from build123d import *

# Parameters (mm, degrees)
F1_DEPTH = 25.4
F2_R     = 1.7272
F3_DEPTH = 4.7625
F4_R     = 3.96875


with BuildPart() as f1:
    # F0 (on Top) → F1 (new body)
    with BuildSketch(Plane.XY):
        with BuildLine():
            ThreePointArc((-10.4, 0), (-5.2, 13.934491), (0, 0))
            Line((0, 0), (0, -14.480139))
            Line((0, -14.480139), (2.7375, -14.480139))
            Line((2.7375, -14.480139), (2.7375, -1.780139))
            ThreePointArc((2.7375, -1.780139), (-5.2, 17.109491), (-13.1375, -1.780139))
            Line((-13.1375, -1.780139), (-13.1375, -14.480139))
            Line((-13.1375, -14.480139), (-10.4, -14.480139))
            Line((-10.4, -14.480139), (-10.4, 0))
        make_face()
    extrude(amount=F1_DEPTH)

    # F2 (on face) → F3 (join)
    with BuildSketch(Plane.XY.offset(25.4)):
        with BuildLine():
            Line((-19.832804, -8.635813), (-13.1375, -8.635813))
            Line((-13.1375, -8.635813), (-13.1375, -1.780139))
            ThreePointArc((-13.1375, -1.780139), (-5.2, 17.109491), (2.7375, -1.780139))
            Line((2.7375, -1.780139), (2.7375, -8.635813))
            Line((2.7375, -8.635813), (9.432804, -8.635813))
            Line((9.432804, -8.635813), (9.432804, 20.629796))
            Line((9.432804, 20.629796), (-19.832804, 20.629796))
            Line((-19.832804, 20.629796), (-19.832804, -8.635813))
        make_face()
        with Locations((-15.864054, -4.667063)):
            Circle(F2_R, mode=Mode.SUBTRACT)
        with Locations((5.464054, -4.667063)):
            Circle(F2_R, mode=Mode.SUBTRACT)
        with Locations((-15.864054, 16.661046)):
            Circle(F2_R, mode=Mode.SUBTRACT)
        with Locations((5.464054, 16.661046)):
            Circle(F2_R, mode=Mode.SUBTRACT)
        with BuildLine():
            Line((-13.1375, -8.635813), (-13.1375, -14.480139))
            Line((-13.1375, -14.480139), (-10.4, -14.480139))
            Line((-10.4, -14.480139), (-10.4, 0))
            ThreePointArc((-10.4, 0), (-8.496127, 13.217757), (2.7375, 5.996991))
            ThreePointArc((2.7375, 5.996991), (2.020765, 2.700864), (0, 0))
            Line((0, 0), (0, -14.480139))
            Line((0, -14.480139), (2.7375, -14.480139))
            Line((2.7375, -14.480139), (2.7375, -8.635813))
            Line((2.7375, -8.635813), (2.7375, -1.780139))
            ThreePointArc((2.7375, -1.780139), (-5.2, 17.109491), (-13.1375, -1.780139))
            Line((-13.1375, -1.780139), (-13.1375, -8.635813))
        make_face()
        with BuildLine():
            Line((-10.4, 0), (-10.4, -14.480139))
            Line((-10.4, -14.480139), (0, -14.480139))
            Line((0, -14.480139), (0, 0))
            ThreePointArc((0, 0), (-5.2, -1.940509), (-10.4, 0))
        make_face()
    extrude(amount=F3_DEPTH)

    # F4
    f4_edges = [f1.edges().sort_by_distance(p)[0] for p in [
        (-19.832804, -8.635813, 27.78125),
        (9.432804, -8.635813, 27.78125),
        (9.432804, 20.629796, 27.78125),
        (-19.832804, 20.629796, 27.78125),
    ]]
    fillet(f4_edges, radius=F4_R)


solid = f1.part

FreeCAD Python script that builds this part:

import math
import FreeCAD as App
import Part
import Sketcher
from FreeCAD import Vector
Q = App.Units.Quantity


def edges_at(feature, points):
    """Names of the edges that pass closest to the given points."""
    edges = feature.Shape.Edges
    near = lambda p: min(range(len(edges)), key=lambda i: edges[i].distToShape(Part.Vertex(*p))[0])
    return sorted({f"Edge{near(p) + 1}" for p in points})

doc = App.newDocument("Part")
body = doc.addObject("PartDesign::Body", "Body")

# Sketch on XY plane
sketch1 = body.newObject("Sketcher::SketchObject", "Sketch")
sketch1.AttachmentSupport = (doc.getObject("XY_Plane"), [""])
sketch1.MapMode = "FlatFace"
sketch1.addGeometry(Part.ArcOfCircle(Part.Circle(Vector(-5.2, 6, 0), Vector(0, 0, 1), 7.9), math.radians(-49), math.radians(229)), False)
sketch1.addGeometry(Part.LineSegment(Vector(0, 0, 0), Vector(0, -14.5, 0)), False)
sketch1.addGeometry(Part.LineSegment(Vector(0, -14.5, 0), Vector(2.7, -14.5, 0)), False)
sketch1.addGeometry(Part.LineSegment(Vector(2.7, -14.5, 0), Vector(2.7, -1.8, 0)), False)
sketch1.addGeometry(Part.ArcOfCircle(Part.Circle(Vector(-5.2, 6, 0), Vector(0, 0, 1), 11.1), math.radians(-44), math.radians(224)), False)
sketch1.addGeometry(Part.LineSegment(Vector(-13.1, -1.8, 0), Vector(-13.1, -14.5, 0)), False)
sketch1.addGeometry(Part.LineSegment(Vector(-13.1, -14.5, 0), Vector(-10.4, -14.5, 0)), False)
sketch1.addGeometry(Part.LineSegment(Vector(-10.4, -14.5, 0), Vector(-10.4, 0, 0)), False)
sketch1.addConstraint(Sketcher.Constraint("Coincident", 0, 1, 1, 1))
sketch1.addConstraint(Sketcher.Constraint("Coincident", 1, 2, 2, 1))
sketch1.addConstraint(Sketcher.Constraint("Coincident", 2, 2, 3, 1))
sketch1.addConstraint(Sketcher.Constraint("Coincident", 3, 2, 4, 1))
sketch1.addConstraint(Sketcher.Constraint("Coincident", 4, 2, 5, 1))
sketch1.addConstraint(Sketcher.Constraint("Coincident", 5, 2, 6, 1))
sketch1.addConstraint(Sketcher.Constraint("Coincident", 6, 2, 7, 1))
sketch1.addConstraint(Sketcher.Constraint("Coincident", 7, 2, 0, 2))
sketch1.addConstraint(Sketcher.Constraint("Vertical", 1))
sketch1.addConstraint(Sketcher.Constraint("Horizontal", 2))
sketch1.addConstraint(Sketcher.Constraint("Vertical", 3))
sketch1.addConstraint(Sketcher.Constraint("Vertical", 5))
sketch1.addConstraint(Sketcher.Constraint("Horizontal", 6))
sketch1.addConstraint(Sketcher.Constraint("Vertical", 7))
sketch1.addConstraint(Sketcher.Constraint("Coincident", 0, 1, -1, 1))
sketch1.addConstraint(Sketcher.Constraint("Coincident", 4, 3, 0, 3))
sketch1.addConstraint(Sketcher.Constraint("PointOnObject", 7, 2, -1))
sketch1.addConstraint(Sketcher.Constraint("Horizontal", 3, 2, 4, 2))
sketch1.addConstraint(Sketcher.Constraint("Horizontal", 2, 2, 5, 2))
sketch1.addConstraint(Sketcher.Constraint("DistanceY", 3, 1, 3, 2, Q("0.5 in")))
sketch1.addConstraint(Sketcher.Constraint("Radius", 0, Q("0.3125 in")))
sketch1.addConstraint(Sketcher.Constraint("Radius", 4, Q("0.4375 in")))
sketch1.addConstraint(Sketcher.Constraint("DistanceX", 4, 3, 2, 2, Q("0.3125 in")))
sketch1.addConstraint(Sketcher.Constraint("DistanceX", 2, 1, 2, 2, Q("2.7375 mm")))
pad1 = body.newObject("PartDesign::Pad", "Pad")
pad1.Profile = sketch1
pad1.Length = Q("1 in")

# Sketch on XY plane
sketch2 = body.newObject("Sketcher::SketchObject", "Sketch001")
sketch2.AttachmentSupport = (doc.getObject("XY_Plane"), [""])
sketch2.MapMode = "FlatFace"
sketch2.AttachmentOffset = App.Placement(Vector(0, 0, 1 * 25.4), App.Rotation())
sketch2.addGeometry(Part.LineSegment(Vector(-19.8, -8.6, 0), Vector(-13.1, -8.6, 0)), False)
sketch2.addGeometry(Part.LineSegment(Vector(-13.1, -8.6, 0), Vector(-13.1, -14.5, 0)), False)
sketch2.addGeometry(Part.LineSegment(Vector(-13.1, -14.5, 0), Vector(2.7, -14.5, 0)), False)
sketch2.addGeometry(Part.LineSegment(Vector(2.7, -14.5, 0), Vector(2.7, -8.6, 0)), False)
sketch2.addGeometry(Part.LineSegment(Vector(2.7, -8.6, 0), Vector(9.4, -8.6, 0)), False)
sketch2.addGeometry(Part.LineSegment(Vector(9.4, -8.6, 0), Vector(9.4, 20.6, 0)), False)
sketch2.addGeometry(Part.LineSegment(Vector(9.4, 20.6, 0), Vector(-19.8, 20.6, 0)), False)
sketch2.addGeometry(Part.LineSegment(Vector(-19.8, 20.6, 0), Vector(-19.8, -8.6, 0)), False)
sketch2.addGeometry(Part.ArcOfCircle(Part.Circle(Vector(-5.2, 6, 0), Vector(0, 0, 1), 7.9), math.radians(0), math.radians(229)), False)
sketch2.addGeometry(Part.ArcOfCircle(Part.Circle(Vector(-5.2, 6, 0), Vector(0, 0, 1), 7.9), math.radians(-49), math.radians(0)), False)
sketch2.addGeometry(Part.ArcOfCircle(Part.Circle(Vector(-5.2, 6, 0), Vector(0, 0, 1), 7.9), math.radians(-131), math.radians(-49)), False)
sketch2.addGeometry(Part.Circle(Vector(-15.9, -4.7, 0), Vector(0, 0, 1), 1.7), False)
sketch2.addGeometry(Part.Circle(Vector(5.5, -4.7, 0), Vector(0, 0, 1), 1.7), False)
sketch2.addGeometry(Part.Circle(Vector(-15.9, 16.7, 0), Vector(0, 0, 1), 1.7), False)
sketch2.addGeometry(Part.Circle(Vector(5.5, 16.7, 0), Vector(0, 0, 1), 1.7), False)
sketch2.addConstraint(Sketcher.Constraint("Coincident", 0, 2, 1, 1))
sketch2.addConstraint(Sketcher.Constraint("Coincident", 1, 2, 2, 1))
sketch2.addConstraint(Sketcher.Constraint("Coincident", 2, 2, 3, 1))
sketch2.addConstraint(Sketcher.Constraint("Coincident", 3, 2, 4, 1))
sketch2.addConstraint(Sketcher.Constraint("Coincident", 4, 2, 5, 1))
sketch2.addConstraint(Sketcher.Constraint("Coincident", 5, 2, 6, 1))
sketch2.addConstraint(Sketcher.Constraint("Coincident", 6, 2, 7, 1))
sketch2.addConstraint(Sketcher.Constraint("Coincident", 7, 2, 0, 1))
sketch2.addConstraint(Sketcher.Constraint("Tangent", 8, 1, 9, 2))
sketch2.addConstraint(Sketcher.Constraint("Tangent", 9, 1, 10, 2))
sketch2.addConstraint(Sketcher.Constraint("Tangent", 10, 1, 8, 2))
sketch2.addConstraint(Sketcher.Constraint("Horizontal", 0))
sketch2.addConstraint(Sketcher.Constraint("Vertical", 1))
sketch2.addConstraint(Sketcher.Constraint("Horizontal", 2))
sketch2.addConstraint(Sketcher.Constraint("Vertical", 3))
sketch2.addConstraint(Sketcher.Constraint("Horizontal", 4))
sketch2.addConstraint(Sketcher.Constraint("Vertical", 5))
sketch2.addConstraint(Sketcher.Constraint("Horizontal", 6))
sketch2.addConstraint(Sketcher.Constraint("Vertical", 7))
sketch2.addConstraint(Sketcher.Constraint("Coincident", 9, 1, -1, 1))
sketch2.addConstraint(Sketcher.Constraint("Equal", 11, 12))
sketch2.addConstraint(Sketcher.Constraint("Equal", 12, 13))
sketch2.addConstraint(Sketcher.Constraint("Equal", 13, 14))
sketch2.addConstraint(Sketcher.Constraint("PointOnObject", 10, 1, -1))
sketch2.addConstraint(Sketcher.Constraint("Horizontal", 11, 3, 12, 3))
sketch2.addConstraint(Sketcher.Constraint("Horizontal", 13, 3, 14, 3))
sketch2.addConstraint(Sketcher.Constraint("Horizontal", 0, 2, 3, 2))
sketch2.addConstraint(Sketcher.Constraint("Horizontal", 10, 3, 8, 1))
sketch2.addConstraint(Sketcher.Constraint("Vertical", 11, 3, 13, 3))
sketch2.addConstraint(Sketcher.Constraint("Vertical", 12, 3, 14, 3))
sketch2.addConstraint(Sketcher.Constraint("Vertical", 3, 2, 8, 1))
sketch2.addConstraint(Sketcher.Constraint("Equal", 0, 4))
sketch2.addConstraint(Sketcher.Constraint("Equal", 6, 5))
sketch2.addConstraint(Sketcher.Constraint("Diameter", 11, Q("0.136 in")))
sketch2.addConstraint(Sketcher.Constraint("Radius", 8, Q("0.3125 in")))
sketch2.addConstraint(Sketcher.Constraint("DistanceX", 2, 1, 2, 2, Q("0.625 in")))
sketch2.addConstraint(Sketcher.Constraint("DistanceY", 0, 2, 11, 3, Q("0.15625 in")))
sketch2.addConstraint(Sketcher.Constraint("DistanceX", 12, 3, 4, 2, Q("0.15625 in")))
sketch2.addConstraint(Sketcher.Constraint("DistanceY", 14, 3, 5, 2, Q("0.15625 in")))
sketch2.addConstraint(Sketcher.Constraint("DistanceX", 6, 2, 13, 3, Q("0.15625 in")))
sketch2.addConstraint(Sketcher.Constraint("DistanceX", 6, 2, 6, 1, Q("29.265608 mm")))
sketch2.addConstraint(Sketcher.Constraint("DistanceX", 8, 3, -1, 1, Q("5.2 mm")))
sketch2.addConstraint(Sketcher.Constraint("DistanceY", 1, 2, 1, 1, Q("5.844326 mm")))
sketch2.addConstraint(Sketcher.Constraint("DistanceY", 1, 2, -1, 1, Q("14.480139 mm")))
pad2 = body.newObject("PartDesign::Pad", "Pad001")
pad2.Profile = sketch2
pad2.Length = Q("0.1875 in")
doc.recompute()

fillet = body.newObject("PartDesign::Fillet", "Fillet")
fillet.Base = (pad2, edges_at(pad2, [
    (-19.833, -8.636, 27.781),
    (9.433, -8.636, 27.781),
    (9.433, 20.63, 27.781),
    (-19.833, 20.63, 27.781),
]))
fillet.Radius = Q("0.15625 in")

doc.recompute()
